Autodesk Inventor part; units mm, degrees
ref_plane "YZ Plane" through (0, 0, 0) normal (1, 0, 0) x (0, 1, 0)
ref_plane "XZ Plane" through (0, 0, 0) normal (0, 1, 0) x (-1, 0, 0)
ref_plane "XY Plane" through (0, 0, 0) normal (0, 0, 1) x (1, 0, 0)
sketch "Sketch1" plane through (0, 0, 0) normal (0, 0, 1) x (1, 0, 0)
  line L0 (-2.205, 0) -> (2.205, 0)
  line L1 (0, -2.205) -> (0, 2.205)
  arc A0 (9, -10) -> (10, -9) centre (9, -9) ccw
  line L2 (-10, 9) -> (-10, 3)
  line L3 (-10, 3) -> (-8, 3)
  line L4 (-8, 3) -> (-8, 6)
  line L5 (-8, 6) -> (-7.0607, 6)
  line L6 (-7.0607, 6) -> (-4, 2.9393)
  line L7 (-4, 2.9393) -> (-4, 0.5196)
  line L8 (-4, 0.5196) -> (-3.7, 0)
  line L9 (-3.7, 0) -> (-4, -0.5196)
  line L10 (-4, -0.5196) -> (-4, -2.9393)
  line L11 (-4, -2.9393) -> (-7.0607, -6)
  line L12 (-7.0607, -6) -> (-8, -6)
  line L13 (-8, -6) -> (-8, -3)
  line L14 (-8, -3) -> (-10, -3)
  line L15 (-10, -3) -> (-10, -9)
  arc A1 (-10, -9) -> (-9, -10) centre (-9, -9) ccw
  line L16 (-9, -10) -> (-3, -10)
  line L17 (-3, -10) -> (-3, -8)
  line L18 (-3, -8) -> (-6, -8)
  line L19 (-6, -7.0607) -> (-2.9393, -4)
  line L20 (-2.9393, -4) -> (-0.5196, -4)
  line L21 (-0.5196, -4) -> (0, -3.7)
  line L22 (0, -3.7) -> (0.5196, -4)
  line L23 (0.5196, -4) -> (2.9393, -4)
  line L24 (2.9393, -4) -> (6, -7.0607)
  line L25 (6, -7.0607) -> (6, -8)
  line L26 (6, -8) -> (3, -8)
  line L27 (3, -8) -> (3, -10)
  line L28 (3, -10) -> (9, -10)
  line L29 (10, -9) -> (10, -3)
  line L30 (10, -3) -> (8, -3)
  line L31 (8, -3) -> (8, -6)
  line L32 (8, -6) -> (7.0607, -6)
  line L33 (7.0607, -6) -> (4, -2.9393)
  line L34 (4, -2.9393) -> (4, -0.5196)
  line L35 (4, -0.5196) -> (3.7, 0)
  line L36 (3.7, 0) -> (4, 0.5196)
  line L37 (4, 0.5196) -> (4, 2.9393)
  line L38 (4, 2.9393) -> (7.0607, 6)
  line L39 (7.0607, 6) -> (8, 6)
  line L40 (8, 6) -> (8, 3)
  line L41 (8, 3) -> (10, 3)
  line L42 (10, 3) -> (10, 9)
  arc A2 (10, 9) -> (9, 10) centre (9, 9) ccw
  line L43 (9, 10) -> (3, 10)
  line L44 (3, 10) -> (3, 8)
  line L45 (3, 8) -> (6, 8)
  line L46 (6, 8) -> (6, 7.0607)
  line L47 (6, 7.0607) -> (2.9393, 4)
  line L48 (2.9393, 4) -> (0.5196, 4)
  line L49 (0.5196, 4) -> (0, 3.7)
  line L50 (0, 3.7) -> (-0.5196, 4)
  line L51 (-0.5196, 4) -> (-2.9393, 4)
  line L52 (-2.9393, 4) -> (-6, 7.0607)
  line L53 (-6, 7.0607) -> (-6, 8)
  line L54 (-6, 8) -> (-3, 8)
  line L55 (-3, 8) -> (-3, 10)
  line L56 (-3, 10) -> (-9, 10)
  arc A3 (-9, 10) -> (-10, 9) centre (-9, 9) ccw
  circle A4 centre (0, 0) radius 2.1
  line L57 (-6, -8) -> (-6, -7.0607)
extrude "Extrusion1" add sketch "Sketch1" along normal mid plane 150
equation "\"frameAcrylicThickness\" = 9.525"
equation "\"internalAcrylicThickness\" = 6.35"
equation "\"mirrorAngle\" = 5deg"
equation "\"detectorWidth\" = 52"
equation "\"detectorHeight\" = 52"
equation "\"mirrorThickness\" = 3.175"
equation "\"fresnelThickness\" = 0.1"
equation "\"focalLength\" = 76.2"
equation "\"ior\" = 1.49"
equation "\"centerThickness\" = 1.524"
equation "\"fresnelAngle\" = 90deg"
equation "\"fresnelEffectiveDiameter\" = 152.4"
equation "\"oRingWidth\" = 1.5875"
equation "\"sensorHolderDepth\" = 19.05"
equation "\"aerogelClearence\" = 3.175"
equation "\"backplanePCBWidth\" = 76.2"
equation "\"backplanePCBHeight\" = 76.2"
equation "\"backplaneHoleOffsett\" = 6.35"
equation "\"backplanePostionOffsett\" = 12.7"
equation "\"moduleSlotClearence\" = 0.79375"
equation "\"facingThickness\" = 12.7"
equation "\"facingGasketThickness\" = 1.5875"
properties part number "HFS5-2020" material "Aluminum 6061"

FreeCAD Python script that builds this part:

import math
import FreeCAD as App
import Part
import Sketcher
Q = App.Units.Quantity

doc = App.newDocument("Part")
body = doc.addObject("PartDesign::Body", "Body")

# Sketch on XY plane
sketch1 = body.newObject("Sketcher::SketchObject", "Sketch")
sketch1.AttachmentSupport = (doc.getObject("XY_Plane"), [""])
sketch1.MapMode = "FlatFace"
sketch1.addGeometry(Part.LineSegment(App.Vector(3, -10, 0), App.Vector(9, -10, 0)), False)
sketch1.addGeometry(Part.ArcOfCircle(Part.Circle(App.Vector(9, -9, 0), App.Vector(0, 0, 1), 1), math.radians(-90), math.radians(0)), False)
sketch1.addGeometry(Part.LineSegment(App.Vector(10, -9, 0), App.Vector(10, -3, 0)), False)
sketch1.addGeometry(Part.LineSegment(App.Vector(10, -3, 0), App.Vector(8, -3, 0)), False)
sketch1.addGeometry(Part.LineSegment(App.Vector(8, -3, 0), App.Vector(8, -6, 0)), False)
sketch1.addGeometry(Part.LineSegment(App.Vector(8, -6, 0), App.Vector(7.0607, -6, 0)), False)
sketch1.addGeometry(Part.LineSegment(App.Vector(7.0607, -6, 0), App.Vector(4, -2.9393, 0)), False)
sketch1.addGeometry(Part.LineSegment(App.Vector(4, -2.9393, 0), App.Vector(4, -0.5196, 0)), False)
sketch1.addGeometry(Part.LineSegment(App.Vector(4, -0.5196, 0), App.Vector(3.7, 0, 0)), False)
sketch1.addGeometry(Part.LineSegment(App.Vector(3.7, 0, 0), App.Vector(4, 0.5196, 0)), False)
sketch1.addGeometry(Part.LineSegment(App.Vector(4, 0.5196, 0), App.Vector(4, 2.9393, 0)), False)
sketch1.addGeometry(Part.LineSegment(App.Vector(4, 2.9393, 0), App.Vector(7.0607, 6, 0)), False)
sketch1.addGeometry(Part.LineSegment(App.Vector(7.0607, 6, 0), App.Vector(8, 6, 0)), False)
sketch1.addGeometry(Part.LineSegment(App.Vector(8, 6, 0), App.Vector(8, 3, 0)), False)
sketch1.addGeometry(Part.LineSegment(App.Vector(8, 3, 0), App.Vector(10, 3, 0)), False)
sketch1.addGeometry(Part.LineSegment(App.Vector(10, 3, 0), App.Vector(10, 9, 0)), False)
sketch1.addGeometry(Part.ArcOfCircle(Part.Circle(App.Vector(9, 9, 0), App.Vector(0, 0, 1), 1), math.radians(0), math.radians(90)), False)
sketch1.addGeometry(Part.LineSegment(App.Vector(9, 10, 0), App.Vector(3, 10, 0)), False)
sketch1.addGeometry(Part.LineSegment(App.Vector(3, 10, 0), App.Vector(3, 8, 0)), False)
sketch1.addGeometry(Part.LineSegment(App.Vector(3, 8, 0), App.Vector(6, 8, 0)), False)
sketch1.addGeometry(Part.LineSegment(App.Vector(6, 8, 0), App.Vector(6, 7.0607, 0)), False)
sketch1.addGeometry(Part.LineSegment(App.Vector(6, 7.0607, 0), App.Vector(2.9393, 4, 0)), False)
sketch1.addGeometry(Part.LineSegment(App.Vector(2.9393, 4, 0), App.Vector(0.5196, 4, 0)), False)
sketch1.addGeometry(Part.LineSegment(App.Vector(0.5196, 4, 0), App.Vector(0, 3.7, 0)), False)
sketch1.addGeometry(Part.LineSegment(App.Vector(0, 3.7, 0), App.Vector(-0.5196, 4, 0)), False)
sketch1.addGeometry(Part.LineSegment(App.Vector(-0.5196, 4, 0), App.Vector(-2.9393, 4, 0)), False)
sketch1.addGeometry(Part.LineSegment(App.Vector(-2.9393, 4, 0), App.Vector(-6, 7.0607, 0)), False)
sketch1.addGeometry(Part.LineSegment(App.Vector(-6, 7.0607, 0), App.Vector(-6, 8, 0)), False)
sketch1.addGeometry(Part.LineSegment(App.Vector(-6, 8, 0), App.Vector(-3, 8, 0)), False)
sketch1.addGeometry(Part.LineSegment(App.Vector(-3, 8, 0), App.Vector(-3, 10, 0)), False)
sketch1.addGeometry(Part.LineSegment(App.Vector(-3, 10, 0), App.Vector(-9, 10, 0)), False)
sketch1.addGeometry(Part.ArcOfCircle(Part.Circle(App.Vector(-9, 9, 0), App.Vector(0, 0, 1), 1), math.radians(90), math.radians(180)), False)
sketch1.addGeometry(Part.LineSegment(App.Vector(-10, 9, 0), App.Vector(-10, 3, 0)), False)
sketch1.addGeometry(Part.LineSegment(App.Vector(-10, 3, 0), App.Vector(-8, 3, 0)), False)
sketch1.addGeometry(Part.LineSegment(App.Vector(-8, 3, 0), App.Vector(-8, 6, 0)), False)
sketch1.addGeometry(Part.LineSegment(App.Vector(-8, 6, 0), App.Vector(-7.0607, 6, 0)), False)
sketch1.addGeometry(Part.LineSegment(App.Vector(-7.0607, 6, 0), App.Vector(-4, 2.9393, 0)), False)
sketch1.addGeometry(Part.LineSegment(App.Vector(-4, 2.9393, 0), App.Vector(-4, 0.5196, 0)), False)
sketch1.addGeometry(Part.LineSegment(App.Vector(-4, 0.5196, 0), App.Vector(-3.7, 0, 0)), False)
sketch1.addGeometry(Part.LineSegment(App.Vector(-3.7, 0, 0), App.Vector(-4, -0.5196, 0)), False)
sketch1.addGeometry(Part.LineSegment(App.Vector(-4, -0.5196, 0), App.Vector(-4, -2.9393, 0)), False)
sketch1.addGeometry(Part.LineSegment(App.Vector(-4, -2.9393, 0), App.Vector(-7.0607, -6, 0)), False)
sketch1.addGeometry(Part.LineSegment(App.Vector(-7.0607, -6, 0), App.Vector(-8, -6, 0)), False)
sketch1.addGeometry(Part.LineSegment(App.Vector(-8, -6, 0), App.Vector(-8, -3, 0)), False)
sketch1.addGeometry(Part.LineSegment(App.Vector(-8, -3, 0), App.Vector(-10, -3, 0)), False)
sketch1.addGeometry(Part.LineSegment(App.Vector(-10, -3, 0), App.Vector(-10, -9, 0)), False)
sketch1.addGeometry(Part.ArcOfCircle(Part.Circle(App.Vector(-9, -9, 0), App.Vector(0, 0, 1), 1), math.radians(180), math.radians(270)), False)
sketch1.addGeometry(Part.LineSegment(App.Vector(-9, -10, 0), App.Vector(-3, -10, 0)), False)
sketch1.addGeometry(Part.LineSegment(App.Vector(-3, -10, 0), App.Vector(-3, -8, 0)), False)
sketch1.addGeometry(Part.LineSegment(App.Vector(-3, -8, 0), App.Vector(-6, -8, 0)), False)
sketch1.addGeometry(Part.LineSegment(App.Vector(-6, -8, 0), App.Vector(-6, -7.0607, 0)), False)
sketch1.addGeometry(Part.LineSegment(App.Vector(-6, -7.0607, 0), App.Vector(-2.9393, -4, 0)), False)
sketch1.addGeometry(Part.LineSegment(App.Vector(-2.9393, -4, 0), App.Vector(-0.5196, -4, 0)), False)
sketch1.addGeometry(Part.LineSegment(App.Vector(-0.5196, -4, 0), App.Vector(0, -3.7, 0)), False)
sketch1.addGeometry(Part.LineSegment(App.Vector(0, -3.7, 0), App.Vector(0.5196, -4, 0)), False)
sketch1.addGeometry(Part.LineSegment(App.Vector(0.5196, -4, 0), App.Vector(2.9393, -4, 0)), False)
sketch1.addGeometry(Part.LineSegment(App.Vector(2.9393, -4, 0), App.Vector(6, -7.0607, 0)), False)
sketch1.addGeometry(Part.LineSegment(App.Vector(6, -7.0607, 0), App.Vector(6, -8, 0)), False)
sketch1.addGeometry(Part.LineSegment(App.Vector(6, -8, 0), App.Vector(3, -8, 0)), False)
sketch1.addGeometry(Part.LineSegment(App.Vector(3, -8, 0), App.Vector(3, -10, 0)), False)
sketch1.addGeometry(Part.Circle(App.Vector(0, 0, 0), App.Vector(0, 0, 1), 2.1), False)
sketch1.addConstraint(Sketcher.Constraint("Tangent", 0, 2, 1, 1))
sketch1.addConstraint(Sketcher.Constraint("Tangent", 1, 2, 2, 1))
sketch1.addConstraint(Sketcher.Constraint("Coincident", 2, 2, 3, 1))
sketch1.addConstraint(Sketcher.Constraint("Coincident", 3, 2, 4, 1))
sketch1.addConstraint(Sketcher.Constraint("Coincident", 4, 2, 5, 1))
sketch1.addConstraint(Sketcher.Constraint("Coincident", 5, 2, 6, 1))
sketch1.addConstraint(Sketcher.Constraint("Coincident", 6, 2, 7, 1))
sketch1.addConstraint(Sketcher.Constraint("Coincident", 7, 2, 8, 1))
sketch1.addConstraint(Sketcher.Constraint("Coincident", 8, 2, 9, 1))
sketch1.addConstraint(Sketcher.Constraint("Coincident", 9, 2, 10, 1))
sketch1.addConstraint(Sketcher.Constraint("Coincident", 10, 2, 11, 1))
sketch1.addConstraint(Sketcher.Constraint("Coincident", 11, 2, 12, 1))
sketch1.addConstraint(Sketcher.Constraint("Coincident", 12, 2, 13, 1))
sketch1.addConstraint(Sketcher.Constraint("Coincident", 13, 2, 14, 1))
sketch1.addConstraint(Sketcher.Constraint("Coincident", 14, 2, 15, 1))
sketch1.addConstraint(Sketcher.Constraint("Tangent", 15, 2, 16, 1))
sketch1.addConstraint(Sketcher.Constraint("Tangent", 16, 2, 17, 1))
sketch1.addConstraint(Sketcher.Constraint("Coincident", 17, 2, 18, 1))
sketch1.addConstraint(Sketcher.Constraint("Coincident", 18, 2, 19, 1))
sketch1.addConstraint(Sketcher.Constraint("Coincident", 19, 2, 20, 1))
sketch1.addConstraint(Sketcher.Constraint("Coincident", 20, 2, 21, 1))
sketch1.addConstraint(Sketcher.Constraint("Coincident", 21, 2, 22, 1))
sketch1.addConstraint(Sketcher.Constraint("Coincident", 22, 2, 23, 1))
sketch1.addConstraint(Sketcher.Constraint("Coincident", 23, 2, 24, 1))
sketch1.addConstraint(Sketcher.Constraint("Coincident", 24, 2, 25, 1))
sketch1.addConstraint(Sketcher.Constraint("Coincident", 25, 2, 26, 1))
sketch1.addConstraint(Sketcher.Constraint("Coincident", 26, 2, 27, 1))
sketch1.addConstraint(Sketcher.Constraint("Coincident", 27, 2, 28, 1))
sketch1.addConstraint(Sketcher.Constraint("Coincident", 28, 2, 29, 1))
sketch1.addConstraint(Sketcher.Constraint("Coincident", 29, 2, 30, 1))
sketch1.addConstraint(Sketcher.Constraint("Tangent", 30, 2, 31, 1))
sketch1.addConstraint(Sketcher.Constraint("Tangent", 31, 2, 32, 1))
sketch1.addConstraint(Sketcher.Constraint("Coincident", 32, 2, 33, 1))
sketch1.addConstraint(Sketcher.Constraint("Coincident", 33, 2, 34, 1))
sketch1.addConstraint(Sketcher.Constraint("Coincident", 34, 2, 35, 1))
sketch1.addConstraint(Sketcher.Constraint("Coincident", 35, 2, 36, 1))
sketch1.addConstraint(Sketcher.Constraint("Coincident", 36, 2, 37, 1))
sketch1.addConstraint(Sketcher.Constraint("Coincident", 37, 2, 38, 1))
sketch1.addConstraint(Sketcher.Constraint("Coincident", 38, 2, 39, 1))
sketch1.addConstraint(Sketcher.Constraint("Coincident", 39, 2, 40, 1))
sketch1.addConstraint(Sketcher.Constraint("Coincident", 40, 2, 41, 1))
sketch1.addConstraint(Sketcher.Constraint("Coincident", 41, 2, 42, 1))
sketch1.addConstraint(Sketcher.Constraint("Coincident", 42, 2, 43, 1))
sketch1.addConstraint(Sketcher.Constraint("Coincident", 43, 2, 44, 1))
sketch1.addConstraint(Sketcher.Constraint("Coincident", 44, 2, 45, 1))
sketch1.addConstraint(Sketcher.Constraint("Tangent", 45, 2, 46, 1))
sketch1.addConstraint(Sketcher.Constraint("Tangent", 46, 2, 47, 1))
sketch1.addConstraint(Sketcher.Constraint("Coincident", 47, 2, 48, 1))
sketch1.addConstraint(Sketcher.Constraint("Coincident", 48, 2, 49, 1))
sketch1.addConstraint(Sketcher.Constraint("Coincident", 49, 2, 50, 1))
sketch1.addConstraint(Sketcher.Constraint("Coincident", 50, 2, 51, 1))
sketch1.addConstraint(Sketcher.Constraint("Coincident", 51, 2, 52, 1))
sketch1.addConstraint(Sketcher.Constraint("Coincident", 52, 2, 53, 1))
sketch1.addConstraint(Sketcher.Constraint("Coincident", 53, 2, 54, 1))
sketch1.addConstraint(Sketcher.Constraint("Coincident", 54, 2, 55, 1))
sketch1.addConstraint(Sketcher.Constraint("Coincident", 55, 2, 56, 1))
sketch1.addConstraint(Sketcher.Constraint("Coincident", 56, 2, 57, 1))
sketch1.addConstraint(Sketcher.Constraint("Coincident", 57, 2, 58, 1))
sketch1.addConstraint(Sketcher.Constraint("Coincident", 58, 2, 59, 1))
sketch1.addConstraint(Sketcher.Constraint("Coincident", 59, 2, 0, 1))
sketch1.addConstraint(Sketcher.Constraint("Horizontal", 0))
sketch1.addConstraint(Sketcher.Constraint("Vertical", 2))
sketch1.addConstraint(Sketcher.Constraint("Horizontal", 3))
sketch1.addConstraint(Sketcher.Constraint("Vertical", 4))
sketch1.addConstraint(Sketcher.Constraint("Horizontal", 5))
sketch1.addConstraint(Sketcher.Constraint("Vertical", 7))
sketch1.addConstraint(Sketcher.Constraint("Vertical", 10))
sketch1.addConstraint(Sketcher.Constraint("Horizontal", 12))
sketch1.addConstraint(Sketcher.Constraint("Vertical", 13))
sketch1.addConstraint(Sketcher.Constraint("Horizontal", 14))
sketch1.addConstraint(Sketcher.Constraint("Vertical", 15))
sketch1.addConstraint(Sketcher.Constraint("Horizontal", 17))
sketch1.addConstraint(Sketcher.Constraint("Vertical", 18))
sketch1.addConstraint(Sketcher.Constraint("Horizontal", 19))
sketch1.addConstraint(Sketcher.Constraint("Vertical", 20))
sketch1.addConstraint(Sketcher.Constraint("Horizontal", 22))
sketch1.addConstraint(Sketcher.Constraint("Horizontal", 25))
sketch1.addConstraint(Sketcher.Constraint("Vertical", 27))
sketch1.addConstraint(Sketcher.Constraint("Horizontal", 28))
sketch1.addConstraint(Sketcher.Constraint("Vertical", 29))
sketch1.addConstraint(Sketcher.Constraint("Horizontal", 30))
sketch1.addConstraint(Sketcher.Constraint("Vertical", 32))
sketch1.addConstraint(Sketcher.Constraint("Horizontal", 33))
sketch1.addConstraint(Sketcher.Constraint("Vertical", 34))
sketch1.addConstraint(Sketcher.Constraint("Horizontal", 35))
sketch1.addConstraint(Sketcher.Constraint("Vertical", 37))
sketch1.addConstraint(Sketcher.Constraint("Vertical", 40))
sketch1.addConstraint(Sketcher.Constraint("Horizontal", 42))
sketch1.addConstraint(Sketcher.Constraint("Vertical", 43))
sketch1.addConstraint(Sketcher.Constraint("Horizontal", 44))
sketch1.addConstraint(Sketcher.Constraint("Vertical", 45))
sketch1.addConstraint(Sketcher.Constraint("Horizontal", 47))
sketch1.addConstraint(Sketcher.Constraint("Vertical", 48))
sketch1.addConstraint(Sketcher.Constraint("Horizontal", 49))
sketch1.addConstraint(Sketcher.Constraint("Vertical", 50))
sketch1.addConstraint(Sketcher.Constraint("Horizontal", 52))
sketch1.addConstraint(Sketcher.Constraint("Horizontal", 55))
sketch1.addConstraint(Sketcher.Constraint("Vertical", 57))
sketch1.addConstraint(Sketcher.Constraint("Horizontal", 58))
sketch1.addConstraint(Sketcher.Constraint("Vertical", 59))
sketch1.addConstraint(Sketcher.Constraint("Coincident", 60, 3, -1, 1))
sketch1.addConstraint(Sketcher.Constraint("Equal", 1, 16))
sketch1.addConstraint(Sketcher.Constraint("Equal", 16, 31))
sketch1.addConstraint(Sketcher.Constraint("Equal", 31, 46))
sketch1.addConstraint(Sketcher.Constraint("Symmetric", 1, 3, 31, 3, -1, 1))
sketch1.addConstraint(Sketcher.Constraint("Symmetric", 16, 3, 46, 3, -1, 1))
sketch1.addConstraint(Sketcher.Constraint("Symmetric", 3, 2, 33, 2, -1, 1))
sketch1.addConstraint(Sketcher.Constraint("Symmetric", 5, 2, 35, 2, -1, 1))
sketch1.addConstraint(Sketcher.Constraint("Symmetric", 6, 2, 36, 2, -1, 1))
sketch1.addConstraint(Sketcher.Constraint("Symmetric", 8, 2, 38, 2, -1, 1))
sketch1.addConstraint(Sketcher.Constraint("Symmetric", 9, 2, 39, 2, -1, 1))
sketch1.addConstraint(Sketcher.Constraint("Symmetric", 11, 2, 41, 2, -1, 1))
sketch1.addConstraint(Sketcher.Constraint("Symmetric", 13, 2, 43, 2, -1, 1))
sketch1.addConstraint(Sketcher.Constraint("Symmetric", 18, 2, 48, 2, -1, 1))
sketch1.addConstraint(Sketcher.Constraint("Symmetric", 20, 2, 50, 2, -1, 1))
sketch1.addConstraint(Sketcher.Constraint("Symmetric", 21, 2, 51, 2, -1, 1))
sketch1.addConstraint(Sketcher.Constraint("Symmetric", 23, 2, 53, 2, -1, 1))
sketch1.addConstraint(Sketcher.Constraint("Symmetric", 24, 2, 54, 2, -1, 1))
sketch1.addConstraint(Sketcher.Constraint("Symmetric", 26, 2, 56, 2, -1, 1))
sketch1.addConstraint(Sketcher.Constraint("Symmetric", 28, 2, 58, 2, -1, 1))
sketch1.addConstraint(Sketcher.Constraint("Symmetric", 16, 3, 31, 3, -2))
sketch1.addConstraint(Sketcher.Constraint("Symmetric", 22, 2, 24, 2, -2))
sketch1.addConstraint(Sketcher.Constraint("Symmetric", 20, 2, 26, 2, -2))
sketch1.addConstraint(Sketcher.Constraint("Symmetric", 18, 2, 28, 2, -2))
sketch1.addConstraint(Sketcher.Constraint("Symmetric", 13, 2, 33, 2, -2))
sketch1.addConstraint(Sketcher.Constraint("Symmetric", 11, 2, 35, 2, -2))
sketch1.addConstraint(Sketcher.Constraint("Symmetric", 10, 2, 36, 2, -2))
sketch1.addConstraint(Sketcher.Constraint("PointOnObject", 8, 2, -1))
sketch1.addConstraint(Sketcher.Constraint("PointOnObject", 23, 2, -2))
sketch1.addConstraint(Sketcher.Constraint("Perpendicular", 6, 11))
sketch1.addConstraint(Sketcher.Constraint("Parallel", 11, 21))
sketch1.addConstraint(Sketcher.Constraint("Perpendicular", 8, 23))
sketch1.addConstraint(Sketcher.Constraint("Perpendicular", 9, 24))
sketch1.addConstraint(Sketcher.Constraint("Perpendicular", 21, 26))
sketch1.addConstraint(Sketcher.Constraint("Perpendicular", 23, 38))
sketch1.addConstraint(Sketcher.Constraint("Perpendicular", 36, 41))
sketch1.addConstraint(Sketcher.Constraint("Perpendicular", 38, 53))
sketch1.addConstraint(Sketcher.Constraint("Perpendicular", 51, 56))
sketch1.addConstraint(Sketcher.Constraint("Equal", 47, 2))
sketch1.addConstraint(Sketcher.Constraint("Equal", 58, 4))
sketch1.addConstraint(Sketcher.Constraint("Equal", 55, 7))
sketch1.addConstraint(Sketcher.Constraint("Equal", 44, 18))
sketch1.addConstraint(Sketcher.Constraint("Equal", 42, 20))
sketch1.addConstraint(Sketcher.Constraint("Equal", 11, 21))
sketch1.addConstraint(Sketcher.Constraint("Equal", 9, 23))
sketch1.addConstraint(Sketcher.Constraint("Radius", 1, 1.0))
sketch1.addConstraint(Sketcher.Constraint("Diameter", 60, 4.2))
sketch1.addConstraint(Sketcher.Constraint("DistanceX", 0, 1, 0, 2, 6.0))
sketch1.addConstraint(Sketcher.Constraint("DistanceX", 3, 2, 3, 1, 2.0))
sketch1.addConstraint(Sketcher.Constraint("DistanceX", 19, 1, 19, 2, 3.0))
sketch1.addConstraint(Sketcher.Constraint("Angle", 8, Q("120.0007 deg")))
sketch1.addConstraint(Sketcher.Constraint("DistanceX", -1, 1, 1, 3, 9.0))
sketch1.addConstraint(Sketcher.Constraint("DistanceX", -1, 1, 6, 2, 4.0))
sketch1.addConstraint(Sketcher.Constraint("Distance", 8, 0.6))
sketch1.addConstraint(Sketcher.Constraint("DistanceX", 5, 2, 5, 1, 0.9393))
pad1 = body.newObject("PartDesign::Pad", "Pad")
pad1.Profile = sketch1
pad1.Length = 150
pad1.Midplane = True

doc.recompute()
